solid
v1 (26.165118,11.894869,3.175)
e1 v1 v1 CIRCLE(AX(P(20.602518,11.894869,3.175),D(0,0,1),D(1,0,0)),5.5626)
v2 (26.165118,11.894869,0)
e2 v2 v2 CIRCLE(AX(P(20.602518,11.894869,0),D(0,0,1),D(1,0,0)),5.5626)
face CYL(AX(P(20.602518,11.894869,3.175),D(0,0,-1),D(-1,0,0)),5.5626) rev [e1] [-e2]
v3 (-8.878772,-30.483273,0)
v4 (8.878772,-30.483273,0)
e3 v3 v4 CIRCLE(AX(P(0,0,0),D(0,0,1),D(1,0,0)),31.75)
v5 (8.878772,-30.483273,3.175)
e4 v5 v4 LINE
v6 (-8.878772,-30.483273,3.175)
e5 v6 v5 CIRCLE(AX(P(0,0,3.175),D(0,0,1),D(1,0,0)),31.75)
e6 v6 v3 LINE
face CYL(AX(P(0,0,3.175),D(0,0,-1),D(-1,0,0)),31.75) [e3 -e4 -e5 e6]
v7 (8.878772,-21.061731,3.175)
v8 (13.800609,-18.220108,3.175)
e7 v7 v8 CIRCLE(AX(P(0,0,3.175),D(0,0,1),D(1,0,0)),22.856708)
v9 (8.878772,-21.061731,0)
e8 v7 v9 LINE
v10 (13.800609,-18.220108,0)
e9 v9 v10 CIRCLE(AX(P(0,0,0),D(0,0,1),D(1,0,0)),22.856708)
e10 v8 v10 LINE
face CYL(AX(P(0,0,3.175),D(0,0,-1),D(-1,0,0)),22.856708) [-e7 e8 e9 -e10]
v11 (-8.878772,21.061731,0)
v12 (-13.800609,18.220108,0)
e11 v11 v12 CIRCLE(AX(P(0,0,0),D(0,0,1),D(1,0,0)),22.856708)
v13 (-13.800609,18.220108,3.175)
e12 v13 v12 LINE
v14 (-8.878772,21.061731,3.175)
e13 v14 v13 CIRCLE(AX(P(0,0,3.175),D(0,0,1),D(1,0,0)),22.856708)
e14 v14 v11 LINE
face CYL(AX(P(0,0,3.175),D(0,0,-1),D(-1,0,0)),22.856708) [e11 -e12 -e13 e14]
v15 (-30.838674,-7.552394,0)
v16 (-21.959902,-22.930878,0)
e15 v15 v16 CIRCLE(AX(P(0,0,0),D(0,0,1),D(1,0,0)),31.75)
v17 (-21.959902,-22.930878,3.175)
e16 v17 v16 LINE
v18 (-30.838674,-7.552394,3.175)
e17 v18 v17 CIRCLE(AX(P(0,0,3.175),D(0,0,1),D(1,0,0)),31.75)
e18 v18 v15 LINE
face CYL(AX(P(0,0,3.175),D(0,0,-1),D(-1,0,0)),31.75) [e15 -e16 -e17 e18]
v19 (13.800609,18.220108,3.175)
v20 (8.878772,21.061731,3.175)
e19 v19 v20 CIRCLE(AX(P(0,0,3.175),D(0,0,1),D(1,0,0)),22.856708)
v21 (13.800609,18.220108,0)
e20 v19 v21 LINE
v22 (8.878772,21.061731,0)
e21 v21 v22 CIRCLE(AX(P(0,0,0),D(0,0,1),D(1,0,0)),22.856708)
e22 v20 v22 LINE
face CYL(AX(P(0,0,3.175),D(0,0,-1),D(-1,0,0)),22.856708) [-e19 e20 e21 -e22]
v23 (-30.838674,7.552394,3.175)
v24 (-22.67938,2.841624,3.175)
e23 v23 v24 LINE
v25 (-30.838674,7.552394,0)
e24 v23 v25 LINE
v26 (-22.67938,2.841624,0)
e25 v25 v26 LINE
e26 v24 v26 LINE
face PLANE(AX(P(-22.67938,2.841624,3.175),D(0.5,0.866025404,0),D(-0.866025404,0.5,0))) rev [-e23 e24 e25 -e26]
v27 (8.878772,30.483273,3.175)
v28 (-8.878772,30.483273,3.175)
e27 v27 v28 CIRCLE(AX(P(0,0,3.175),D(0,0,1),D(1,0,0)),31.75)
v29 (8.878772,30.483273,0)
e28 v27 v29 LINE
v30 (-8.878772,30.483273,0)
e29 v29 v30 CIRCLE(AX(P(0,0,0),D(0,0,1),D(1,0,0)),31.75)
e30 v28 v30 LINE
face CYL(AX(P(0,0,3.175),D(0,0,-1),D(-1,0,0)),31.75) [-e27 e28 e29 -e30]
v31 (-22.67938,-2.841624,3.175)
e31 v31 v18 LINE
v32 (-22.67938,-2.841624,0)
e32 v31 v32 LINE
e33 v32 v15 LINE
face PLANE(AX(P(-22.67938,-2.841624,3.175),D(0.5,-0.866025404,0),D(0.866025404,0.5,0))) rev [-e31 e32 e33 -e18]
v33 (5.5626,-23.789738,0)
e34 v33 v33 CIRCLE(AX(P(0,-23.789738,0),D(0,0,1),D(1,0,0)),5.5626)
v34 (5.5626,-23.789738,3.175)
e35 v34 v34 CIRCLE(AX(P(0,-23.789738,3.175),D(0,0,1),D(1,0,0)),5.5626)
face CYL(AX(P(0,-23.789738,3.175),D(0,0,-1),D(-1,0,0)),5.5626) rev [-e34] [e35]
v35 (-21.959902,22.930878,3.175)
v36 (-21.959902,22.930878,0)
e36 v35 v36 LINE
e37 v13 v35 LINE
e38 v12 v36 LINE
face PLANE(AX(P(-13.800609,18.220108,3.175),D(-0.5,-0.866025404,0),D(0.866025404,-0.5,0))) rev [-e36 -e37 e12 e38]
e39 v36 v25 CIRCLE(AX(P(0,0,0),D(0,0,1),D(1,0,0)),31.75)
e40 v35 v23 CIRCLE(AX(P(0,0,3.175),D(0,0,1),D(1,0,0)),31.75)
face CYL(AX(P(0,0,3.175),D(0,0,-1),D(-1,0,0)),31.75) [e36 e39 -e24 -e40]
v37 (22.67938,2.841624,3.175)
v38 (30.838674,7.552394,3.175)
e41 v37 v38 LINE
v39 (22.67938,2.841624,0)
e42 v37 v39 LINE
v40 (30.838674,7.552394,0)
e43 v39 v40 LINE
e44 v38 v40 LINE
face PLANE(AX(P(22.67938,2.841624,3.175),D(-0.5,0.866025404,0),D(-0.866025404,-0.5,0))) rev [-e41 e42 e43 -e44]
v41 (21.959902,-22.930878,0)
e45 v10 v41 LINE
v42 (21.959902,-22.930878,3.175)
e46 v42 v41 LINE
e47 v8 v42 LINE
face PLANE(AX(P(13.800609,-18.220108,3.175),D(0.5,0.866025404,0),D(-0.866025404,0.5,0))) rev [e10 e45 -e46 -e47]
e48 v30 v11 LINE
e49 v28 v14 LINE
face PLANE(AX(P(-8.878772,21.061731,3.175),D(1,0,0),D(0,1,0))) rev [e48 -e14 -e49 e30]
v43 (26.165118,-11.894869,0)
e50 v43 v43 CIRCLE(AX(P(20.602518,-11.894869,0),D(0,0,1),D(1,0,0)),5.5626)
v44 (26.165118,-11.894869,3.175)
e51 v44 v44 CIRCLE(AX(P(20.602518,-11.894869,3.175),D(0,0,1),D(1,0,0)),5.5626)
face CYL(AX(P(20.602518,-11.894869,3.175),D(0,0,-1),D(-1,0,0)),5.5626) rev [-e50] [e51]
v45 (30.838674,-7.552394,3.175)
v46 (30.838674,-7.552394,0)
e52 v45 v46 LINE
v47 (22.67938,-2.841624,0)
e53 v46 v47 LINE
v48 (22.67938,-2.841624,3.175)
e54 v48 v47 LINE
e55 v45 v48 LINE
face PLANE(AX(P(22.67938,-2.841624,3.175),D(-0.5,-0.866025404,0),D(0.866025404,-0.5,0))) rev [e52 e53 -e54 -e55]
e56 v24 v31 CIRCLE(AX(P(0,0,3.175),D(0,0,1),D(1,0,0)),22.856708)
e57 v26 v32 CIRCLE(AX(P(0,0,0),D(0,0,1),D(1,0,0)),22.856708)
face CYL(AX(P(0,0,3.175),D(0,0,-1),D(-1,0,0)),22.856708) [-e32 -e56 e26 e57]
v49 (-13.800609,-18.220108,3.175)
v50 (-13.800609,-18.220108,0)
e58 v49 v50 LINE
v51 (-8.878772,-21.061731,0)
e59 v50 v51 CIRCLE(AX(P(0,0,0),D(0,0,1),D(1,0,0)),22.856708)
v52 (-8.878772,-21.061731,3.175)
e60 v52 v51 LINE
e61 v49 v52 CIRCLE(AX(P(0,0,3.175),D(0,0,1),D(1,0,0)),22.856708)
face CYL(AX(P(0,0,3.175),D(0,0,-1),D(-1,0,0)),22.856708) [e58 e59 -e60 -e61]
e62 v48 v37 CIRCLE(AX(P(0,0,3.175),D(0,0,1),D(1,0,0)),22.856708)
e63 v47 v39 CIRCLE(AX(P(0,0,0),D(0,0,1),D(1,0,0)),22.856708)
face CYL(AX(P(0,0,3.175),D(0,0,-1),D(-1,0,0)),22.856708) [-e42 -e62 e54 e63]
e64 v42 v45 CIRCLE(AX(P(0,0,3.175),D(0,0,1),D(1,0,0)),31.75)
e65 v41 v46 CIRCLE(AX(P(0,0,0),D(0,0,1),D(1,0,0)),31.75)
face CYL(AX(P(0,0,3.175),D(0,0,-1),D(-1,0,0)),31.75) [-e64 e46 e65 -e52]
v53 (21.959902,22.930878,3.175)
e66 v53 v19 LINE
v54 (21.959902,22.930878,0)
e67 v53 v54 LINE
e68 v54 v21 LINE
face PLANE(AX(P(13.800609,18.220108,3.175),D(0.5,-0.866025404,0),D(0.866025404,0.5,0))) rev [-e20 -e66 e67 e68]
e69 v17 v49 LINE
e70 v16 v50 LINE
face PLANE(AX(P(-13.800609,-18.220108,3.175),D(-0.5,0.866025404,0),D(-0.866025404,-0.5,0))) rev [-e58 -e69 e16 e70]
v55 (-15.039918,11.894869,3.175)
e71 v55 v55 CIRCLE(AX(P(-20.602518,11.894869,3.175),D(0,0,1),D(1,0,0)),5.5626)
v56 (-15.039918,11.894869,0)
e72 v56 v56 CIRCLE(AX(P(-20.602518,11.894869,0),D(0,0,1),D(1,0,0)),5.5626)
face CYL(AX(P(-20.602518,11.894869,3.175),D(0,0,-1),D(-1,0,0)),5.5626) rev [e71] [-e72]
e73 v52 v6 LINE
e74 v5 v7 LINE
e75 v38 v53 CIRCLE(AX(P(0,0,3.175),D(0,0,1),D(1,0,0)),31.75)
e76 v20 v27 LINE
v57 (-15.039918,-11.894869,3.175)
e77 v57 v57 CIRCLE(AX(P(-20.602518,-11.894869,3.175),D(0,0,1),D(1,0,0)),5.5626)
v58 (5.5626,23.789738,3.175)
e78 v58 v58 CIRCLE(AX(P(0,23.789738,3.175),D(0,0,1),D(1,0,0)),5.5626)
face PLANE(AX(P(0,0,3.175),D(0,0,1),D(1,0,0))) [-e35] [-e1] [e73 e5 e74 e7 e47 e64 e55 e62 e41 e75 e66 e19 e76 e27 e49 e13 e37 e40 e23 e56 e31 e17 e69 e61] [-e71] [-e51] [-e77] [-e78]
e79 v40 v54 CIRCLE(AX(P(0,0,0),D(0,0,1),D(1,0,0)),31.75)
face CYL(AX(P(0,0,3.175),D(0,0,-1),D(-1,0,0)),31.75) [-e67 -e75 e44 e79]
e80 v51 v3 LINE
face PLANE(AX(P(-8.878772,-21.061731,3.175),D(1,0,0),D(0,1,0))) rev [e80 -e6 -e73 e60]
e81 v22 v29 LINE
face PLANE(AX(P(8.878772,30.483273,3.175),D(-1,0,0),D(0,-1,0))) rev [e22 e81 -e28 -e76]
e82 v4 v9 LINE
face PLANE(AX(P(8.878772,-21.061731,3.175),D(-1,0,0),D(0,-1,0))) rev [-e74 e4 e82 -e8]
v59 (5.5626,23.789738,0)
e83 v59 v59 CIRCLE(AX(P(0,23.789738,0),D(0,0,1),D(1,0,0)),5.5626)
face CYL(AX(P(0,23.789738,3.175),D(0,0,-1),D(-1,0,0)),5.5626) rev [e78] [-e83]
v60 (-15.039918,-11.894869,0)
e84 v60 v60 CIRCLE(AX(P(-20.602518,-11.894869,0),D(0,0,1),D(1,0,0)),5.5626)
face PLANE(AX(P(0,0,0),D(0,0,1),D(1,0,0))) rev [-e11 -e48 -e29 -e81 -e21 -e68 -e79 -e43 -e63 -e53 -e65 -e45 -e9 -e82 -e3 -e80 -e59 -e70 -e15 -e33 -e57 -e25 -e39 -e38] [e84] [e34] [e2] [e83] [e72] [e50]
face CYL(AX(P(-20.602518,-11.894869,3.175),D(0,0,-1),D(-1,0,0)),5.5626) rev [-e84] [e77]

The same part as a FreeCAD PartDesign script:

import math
import FreeCAD as App
import Part
import Sketcher
from FreeCAD import Vector
Q = App.Units.Quantity

doc = App.newDocument("Part")
params = doc.addObject("Spreadsheet::Sheet", "Params")
for row, (alias, value) in enumerate([
    ("sketch1_diameter", "2.5 in"),
    ("sketch1_diameter2", "0.438 in"),
    ("pad1_length", "0.125 in"),
    ("sketch2_radius", "1.25 in"),
], start=1):
    params.set(f"A{row}", alias)
    params.set(f"B{row}", "=" + value)
    params.setAlias(f"B{row}", alias)

body = doc.addObject("PartDesign::Body", "Body")

# Sketch on XY plane
sketch1 = doc.addObject("Sketcher::SketchObject", "Sketch")
body.addObject(sketch1)
sketch1.AttachmentSupport = (doc.XY_Plane, [""])
sketch1.MapMode = "FlatFace"
sketch1.addGeometry(Part.Circle(Vector(0, 0, 0), Vector(0, 0, 1), 31.75), False)
sketch1.addGeometry(Part.Circle(Vector(0, -23.789738, 0), Vector(0, 0, 1), 5.5626), False)
sketch1.addGeometry(Part.Circle(Vector(-20.602518, -11.894869, 0), Vector(0, 0, 1), 5.5626), False)
sketch1.addGeometry(Part.Circle(Vector(20.602518, -11.894869, 0), Vector(0, 0, 1), 5.5626), False)
sketch1.addGeometry(Part.Circle(Vector(-20.602518, 11.894869, 0), Vector(0, 0, 1), 5.5626), False)
sketch1.addGeometry(Part.Circle(Vector(0, 23.789738, 0), Vector(0, 0, 1), 5.5626), False)
sketch1.addGeometry(Part.Circle(Vector(20.602518, 11.894869, 0), Vector(0, 0, 1), 5.5626), False)
sketch1.addConstraint(Sketcher.Constraint("Coincident", 0, 3, -1, 1))
sketch1.addConstraint(Sketcher.Constraint("Equal", 1, 2))
sketch1.addConstraint(Sketcher.Constraint("Equal", 2, 3))
sketch1.addConstraint(Sketcher.Constraint("Equal", 3, 4))
sketch1.addConstraint(Sketcher.Constraint("Equal", 4, 5))
sketch1.addConstraint(Sketcher.Constraint("Equal", 5, 6))
sketch1.addConstraint(Sketcher.Constraint("Symmetric", 3, 3, 4, 3, -1, 1))
sketch1.addConstraint(Sketcher.Constraint("Symmetric", 1, 3, 5, 3, -1, 1))
sketch1.addConstraint(Sketcher.Constraint("Symmetric", 2, 3, 6, 3, -1, 1))
sketch1.addConstraint(Sketcher.Constraint("Symmetric", 2, 3, 3, 3, -2))
sketch1.addConstraint(Sketcher.Constraint("PointOnObject", 1, 3, -2))
sketch1.addConstraint(Sketcher.Constraint("Diameter", 0, Q("2.5 in")))
sketch1.addConstraint(Sketcher.Constraint("Diameter", 1, Q("0.438 in")))
sketch1.addConstraint(Sketcher.Constraint("DistanceY", 1, 3, -1, 1, 23.789738))
sketch1.addConstraint(Sketcher.Constraint("DistanceY", 2, 3, -1, 1, 11.894869))
sketch1.addConstraint(Sketcher.Constraint("DistanceX", 2, 3, -1, 1, 20.602518))
sketch1.setExpression("Constraints[11]", "Params.sketch1_diameter")
sketch1.setExpression("Constraints[12]", "Params.sketch1_diameter2")
pad1 = doc.addObject("PartDesign::Pad", "Pad")
body.addObject(pad1)
pad1.Profile = sketch1
pad1.setExpression("Length", "Params.pad1_length")

# Sketch on XY plane
sketch2 = doc.addObject("Sketcher::SketchObject", "Sketch001")
body.addObject(sketch2)
sketch2.AttachmentSupport = (doc.XY_Plane, [""])
sketch2.MapMode = "FlatFace"
sketch2.addGeometry(Part.LineSegment(Vector(-8.878772, 30.483273, 0), Vector(-8.878772, 21.061731, 0)), False)
sketch2.addGeometry(Part.ArcOfCircle(Part.Circle(Vector(0, 0, 0), Vector(0, 0, 1), 22.856708), math.radians(112.858315), math.radians(127.141685)), False)
sketch2.addGeometry(Part.LineSegment(Vector(-13.800609, 18.220108, 0), Vector(-21.959902, 22.930878, 0)), False)
sketch2.addGeometry(Part.ArcOfCircle(Part.Circle(Vector(0, 0, 0), Vector(0, 0, 1), 31.75), math.radians(106.2391), math.radians(133.7609)), False)
sketch2.addGeometry(Part.LineSegment(Vector(8.878772, 21.061731, 0), Vector(8.878772, 30.483273, 0)), False)
sketch2.addGeometry(Part.ArcOfCircle(Part.Circle(Vector(0, 0, 0), Vector(0, 0, 1), 31.75), math.radians(46.2391), math.radians(73.7609)), False)
sketch2.addGeometry(Part.LineSegment(Vector(21.959902, 22.930878, 0), Vector(13.800609, 18.220108, 0)), False)
sketch2.addGeometry(Part.ArcOfCircle(Part.Circle(Vector(0, 0, 0), Vector(0, 0, 1), 22.856708), math.radians(52.858315), math.radians(67.141685)), False)
sketch2.addGeometry(Part.LineSegment(Vector(-30.838674, 7.552394, 0), Vector(-22.67938, 2.841624, 0)), False)
sketch2.addGeometry(Part.ArcOfCircle(Part.Circle(Vector(0, 0, 0), Vector(0, 0, 1), 22.856709), math.radians(172.858315), math.radians(187.141685)), False)
sketch2.addGeometry(Part.LineSegment(Vector(-22.67938, -2.841624, 0), Vector(-30.838674, -7.552394, 0)), False)
sketch2.addGeometry(Part.ArcOfCircle(Part.Circle(Vector(0, 0, 0), Vector(0, 0, 1), 31.75), math.radians(166.2391), math.radians(193.7609)), False)
sketch2.addGeometry(Part.LineSegment(Vector(-21.959902, -22.930878, 0), Vector(-13.800609, -18.220108, 0)), False)
sketch2.addGeometry(Part.ArcOfCircle(Part.Circle(Vector(0, 0, 0), Vector(0, 0, 1), 22.856708), math.radians(-127.141685), math.radians(-112.858315)), False)
sketch2.addGeometry(Part.LineSegment(Vector(-8.878772, -21.061731, 0), Vector(-8.878772, -30.483273, 0)), False)
sketch2.addGeometry(Part.ArcOfCircle(Part.Circle(Vector(0, 0, 0), Vector(0, 0, 1), 31.75), math.radians(-133.7609), math.radians(-106.2391)), False)
sketch2.addGeometry(Part.LineSegment(Vector(8.878772, -30.483273, 0), Vector(8.878772, -21.061731, 0)), False)
sketch2.addGeometry(Part.ArcOfCircle(Part.Circle(Vector(0, 0, 0), Vector(0, 0, 1), 22.856708), math.radians(-67.141685), math.radians(-52.858315)), False)
sketch2.addGeometry(Part.LineSegment(Vector(13.800609, -18.220108, 0), Vector(21.959902, -22.930878, 0)), False)
sketch2.addGeometry(Part.ArcOfCircle(Part.Circle(Vector(0, 0, 0), Vector(0, 0, 1), 31.75), math.radians(-73.7609), math.radians(-46.2391)), False)
sketch2.addGeometry(Part.LineSegment(Vector(30.838674, -7.552394, 0), Vector(22.67938, -2.841624, 0)), False)
sketch2.addGeometry(Part.ArcOfCircle(Part.Circle(Vector(0, 0, 0), Vector(0, 0, 1), 22.856709), math.radians(-7.141685), math.radians(7.141685)), False)
sketch2.addGeometry(Part.LineSegment(Vector(22.67938, 2.841624, 0), Vector(30.838674, 7.552394, 0)), False)
sketch2.addGeometry(Part.ArcOfCircle(Part.Circle(Vector(0, 0, 0), Vector(0, 0, 1), 31.75), math.radians(-13.7609), math.radians(13.7609)), False)
sketch2.addConstraint(Sketcher.Constraint("Coincident", 0, 2, 1, 1))
sketch2.addConstraint(Sketcher.Constraint("Coincident", 1, 2, 2, 1))
sketch2.addConstraint(Sketcher.Constraint("Coincident", 2, 2, 3, 2))
sketch2.addConstraint(Sketcher.Constraint("Coincident", 3, 1, 0, 1))
sketch2.addConstraint(Sketcher.Constraint("Coincident", 4, 2, 5, 2))
sketch2.addConstraint(Sketcher.Constraint("Coincident", 5, 1, 6, 1))
sketch2.addConstraint(Sketcher.Constraint("Coincident", 6, 2, 7, 1))
sketch2.addConstraint(Sketcher.Constraint("Coincident", 7, 2, 4, 1))
sketch2.addConstraint(Sketcher.Constraint("Coincident", 8, 2, 9, 1))
sketch2.addConstraint(Sketcher.Constraint("Coincident", 9, 2, 10, 1))
sketch2.addConstraint(Sketcher.Constraint("Coincident", 10, 2, 11, 2))
sketch2.addConstraint(Sketcher.Constraint("Coincident", 11, 1, 8, 1))
sketch2.addConstraint(Sketcher.Constraint("Coincident", 12, 2, 13, 1))
sketch2.addConstraint(Sketcher.Constraint("Coincident", 13, 2, 14, 1))
sketch2.addConstraint(Sketcher.Constraint("Coincident", 14, 2, 15, 2))
sketch2.addConstraint(Sketcher.Constraint("Coincident", 15, 1, 12, 1))
sketch2.addConstraint(Sketcher.Constraint("Coincident", 16, 2, 17, 1))
sketch2.addConstraint(Sketcher.Constraint("Coincident", 17, 2, 18, 1))
sketch2.addConstraint(Sketcher.Constraint("Coincident", 18, 2, 19, 2))
sketch2.addConstraint(Sketcher.Constraint("Coincident", 19, 1, 16, 1))
sketch2.addConstraint(Sketcher.Constraint("Coincident", 20, 2, 21, 1))
sketch2.addConstraint(Sketcher.Constraint("Coincident", 21, 2, 22, 1))
sketch2.addConstraint(Sketcher.Constraint("Coincident", 22, 2, 23, 2))
sketch2.addConstraint(Sketcher.Constraint("Coincident", 23, 1, 20, 1))
sketch2.addConstraint(Sketcher.Constraint("Vertical", 0))
sketch2.addConstraint(Sketcher.Constraint("Vertical", 4))
sketch2.addConstraint(Sketcher.Constraint("Vertical", 14))
sketch2.addConstraint(Sketcher.Constraint("Vertical", 16))
sketch2.addConstraint(Sketcher.Constraint("Coincident", 1, 3, -1, 1))
sketch2.addConstraint(Sketcher.Constraint("Coincident", 3, 3, -1, 1))
sketch2.addConstraint(Sketcher.Constraint("Coincident", 5, 3, -1, 1))
sketch2.addConstraint(Sketcher.Constraint("Coincident", 7, 3, -1, 1))
sketch2.addConstraint(Sketcher.Constraint("Coincident", 9, 3, -1, 1))
sketch2.addConstraint(Sketcher.Constraint("Coincident", 11, 3, -1, 1))
sketch2.addConstraint(Sketcher.Constraint("Coincident", 13, 3, -1, 1))
sketch2.addConstraint(Sketcher.Constraint("Coincident", 15, 3, -1, 1))
sketch2.addConstraint(Sketcher.Constraint("Coincident", 17, 3, -1, 1))
sketch2.addConstraint(Sketcher.Constraint("Coincident", 19, 3, -1, 1))
sketch2.addConstraint(Sketcher.Constraint("Coincident", 21, 3, -1, 1))
sketch2.addConstraint(Sketcher.Constraint("Coincident", 23, 3, -1, 1))
sketch2.addConstraint(Sketcher.Constraint("Equal", 3, 5))
sketch2.addConstraint(Sketcher.Constraint("Equal", 1, 7))
sketch2.addConstraint(Sketcher.Constraint("Equal", 7, 9))
sketch2.addConstraint(Sketcher.Constraint("Equal", 5, 11))
sketch2.addConstraint(Sketcher.Constraint("Equal", 9, 13))
sketch2.addConstraint(Sketcher.Constraint("Equal", 11, 15))
sketch2.addConstraint(Sketcher.Constraint("Equal", 13, 17))
sketch2.addConstraint(Sketcher.Constraint("Equal", 15, 19))
sketch2.addConstraint(Sketcher.Constraint("Equal", 17, 21))
sketch2.addConstraint(Sketcher.Constraint("Equal", 19, 23))
sketch2.addConstraint(Sketcher.Constraint("Parallel", 2, 8))
sketch2.addConstraint(Sketcher.Constraint("Parallel", 6, 10))
sketch2.addConstraint(Sketcher.Constraint("Parallel", 10, 12))
sketch2.addConstraint(Sketcher.Constraint("Parallel", 8, 18))
sketch2.addConstraint(Sketcher.Constraint("Parallel", 18, 20))
sketch2.addConstraint(Sketcher.Constraint("Parallel", 12, 22))
sketch2.addConstraint(Sketcher.Constraint("Horizontal", 3, 1, 4, 2))
sketch2.addConstraint(Sketcher.Constraint("Horizontal", 2, 2, 5, 1))
sketch2.addConstraint(Sketcher.Constraint("Horizontal", 1, 2, 6, 2))
sketch2.addConstraint(Sketcher.Constraint("Horizontal", 13, 2, 16, 2))
sketch2.addConstraint(Sketcher.Constraint("Horizontal", 12, 2, 17, 2))
sketch2.addConstraint(Sketcher.Constraint("Horizontal", 9, 2, 20, 2))
sketch2.addConstraint(Sketcher.Constraint("Horizontal", 8, 2, 21, 2))
sketch2.addConstraint(Sketcher.Constraint("Vertical", 8, 2, 9, 2))
sketch2.addConstraint(Sketcher.Constraint("Vertical", 1, 2, 12, 2))
sketch2.addConstraint(Sketcher.Constraint("Vertical", 3, 1, 13, 2))
sketch2.addConstraint(Sketcher.Constraint("Equal", 6, 8))
sketch2.addConstraint(Sketcher.Constraint("Radius", 3, Q("1.25 in")))
sketch2.addConstraint(Sketcher.Constraint("Angle", 2, Q("150 deg")))
sketch2.addConstraint(Sketcher.Constraint("Radius", 1, 22.856708))
sketch2.addConstraint(Sketcher.Constraint("DistanceY", 0, 2, 0, 1, 9.421541))
sketch2.addConstraint(Sketcher.Constraint("Distance", 2, 9.421541))
sketch2.setExpression("Constraints[67]", "Params.sketch2_radius")
pocket1 = doc.addObject("PartDesign::Pocket", "Pocket")
body.addObject(pocket1)
pocket1.Profile = sketch2
pocket1.Type = "ThroughAll"
pocket1.Reversed = True

doc.recompute()
